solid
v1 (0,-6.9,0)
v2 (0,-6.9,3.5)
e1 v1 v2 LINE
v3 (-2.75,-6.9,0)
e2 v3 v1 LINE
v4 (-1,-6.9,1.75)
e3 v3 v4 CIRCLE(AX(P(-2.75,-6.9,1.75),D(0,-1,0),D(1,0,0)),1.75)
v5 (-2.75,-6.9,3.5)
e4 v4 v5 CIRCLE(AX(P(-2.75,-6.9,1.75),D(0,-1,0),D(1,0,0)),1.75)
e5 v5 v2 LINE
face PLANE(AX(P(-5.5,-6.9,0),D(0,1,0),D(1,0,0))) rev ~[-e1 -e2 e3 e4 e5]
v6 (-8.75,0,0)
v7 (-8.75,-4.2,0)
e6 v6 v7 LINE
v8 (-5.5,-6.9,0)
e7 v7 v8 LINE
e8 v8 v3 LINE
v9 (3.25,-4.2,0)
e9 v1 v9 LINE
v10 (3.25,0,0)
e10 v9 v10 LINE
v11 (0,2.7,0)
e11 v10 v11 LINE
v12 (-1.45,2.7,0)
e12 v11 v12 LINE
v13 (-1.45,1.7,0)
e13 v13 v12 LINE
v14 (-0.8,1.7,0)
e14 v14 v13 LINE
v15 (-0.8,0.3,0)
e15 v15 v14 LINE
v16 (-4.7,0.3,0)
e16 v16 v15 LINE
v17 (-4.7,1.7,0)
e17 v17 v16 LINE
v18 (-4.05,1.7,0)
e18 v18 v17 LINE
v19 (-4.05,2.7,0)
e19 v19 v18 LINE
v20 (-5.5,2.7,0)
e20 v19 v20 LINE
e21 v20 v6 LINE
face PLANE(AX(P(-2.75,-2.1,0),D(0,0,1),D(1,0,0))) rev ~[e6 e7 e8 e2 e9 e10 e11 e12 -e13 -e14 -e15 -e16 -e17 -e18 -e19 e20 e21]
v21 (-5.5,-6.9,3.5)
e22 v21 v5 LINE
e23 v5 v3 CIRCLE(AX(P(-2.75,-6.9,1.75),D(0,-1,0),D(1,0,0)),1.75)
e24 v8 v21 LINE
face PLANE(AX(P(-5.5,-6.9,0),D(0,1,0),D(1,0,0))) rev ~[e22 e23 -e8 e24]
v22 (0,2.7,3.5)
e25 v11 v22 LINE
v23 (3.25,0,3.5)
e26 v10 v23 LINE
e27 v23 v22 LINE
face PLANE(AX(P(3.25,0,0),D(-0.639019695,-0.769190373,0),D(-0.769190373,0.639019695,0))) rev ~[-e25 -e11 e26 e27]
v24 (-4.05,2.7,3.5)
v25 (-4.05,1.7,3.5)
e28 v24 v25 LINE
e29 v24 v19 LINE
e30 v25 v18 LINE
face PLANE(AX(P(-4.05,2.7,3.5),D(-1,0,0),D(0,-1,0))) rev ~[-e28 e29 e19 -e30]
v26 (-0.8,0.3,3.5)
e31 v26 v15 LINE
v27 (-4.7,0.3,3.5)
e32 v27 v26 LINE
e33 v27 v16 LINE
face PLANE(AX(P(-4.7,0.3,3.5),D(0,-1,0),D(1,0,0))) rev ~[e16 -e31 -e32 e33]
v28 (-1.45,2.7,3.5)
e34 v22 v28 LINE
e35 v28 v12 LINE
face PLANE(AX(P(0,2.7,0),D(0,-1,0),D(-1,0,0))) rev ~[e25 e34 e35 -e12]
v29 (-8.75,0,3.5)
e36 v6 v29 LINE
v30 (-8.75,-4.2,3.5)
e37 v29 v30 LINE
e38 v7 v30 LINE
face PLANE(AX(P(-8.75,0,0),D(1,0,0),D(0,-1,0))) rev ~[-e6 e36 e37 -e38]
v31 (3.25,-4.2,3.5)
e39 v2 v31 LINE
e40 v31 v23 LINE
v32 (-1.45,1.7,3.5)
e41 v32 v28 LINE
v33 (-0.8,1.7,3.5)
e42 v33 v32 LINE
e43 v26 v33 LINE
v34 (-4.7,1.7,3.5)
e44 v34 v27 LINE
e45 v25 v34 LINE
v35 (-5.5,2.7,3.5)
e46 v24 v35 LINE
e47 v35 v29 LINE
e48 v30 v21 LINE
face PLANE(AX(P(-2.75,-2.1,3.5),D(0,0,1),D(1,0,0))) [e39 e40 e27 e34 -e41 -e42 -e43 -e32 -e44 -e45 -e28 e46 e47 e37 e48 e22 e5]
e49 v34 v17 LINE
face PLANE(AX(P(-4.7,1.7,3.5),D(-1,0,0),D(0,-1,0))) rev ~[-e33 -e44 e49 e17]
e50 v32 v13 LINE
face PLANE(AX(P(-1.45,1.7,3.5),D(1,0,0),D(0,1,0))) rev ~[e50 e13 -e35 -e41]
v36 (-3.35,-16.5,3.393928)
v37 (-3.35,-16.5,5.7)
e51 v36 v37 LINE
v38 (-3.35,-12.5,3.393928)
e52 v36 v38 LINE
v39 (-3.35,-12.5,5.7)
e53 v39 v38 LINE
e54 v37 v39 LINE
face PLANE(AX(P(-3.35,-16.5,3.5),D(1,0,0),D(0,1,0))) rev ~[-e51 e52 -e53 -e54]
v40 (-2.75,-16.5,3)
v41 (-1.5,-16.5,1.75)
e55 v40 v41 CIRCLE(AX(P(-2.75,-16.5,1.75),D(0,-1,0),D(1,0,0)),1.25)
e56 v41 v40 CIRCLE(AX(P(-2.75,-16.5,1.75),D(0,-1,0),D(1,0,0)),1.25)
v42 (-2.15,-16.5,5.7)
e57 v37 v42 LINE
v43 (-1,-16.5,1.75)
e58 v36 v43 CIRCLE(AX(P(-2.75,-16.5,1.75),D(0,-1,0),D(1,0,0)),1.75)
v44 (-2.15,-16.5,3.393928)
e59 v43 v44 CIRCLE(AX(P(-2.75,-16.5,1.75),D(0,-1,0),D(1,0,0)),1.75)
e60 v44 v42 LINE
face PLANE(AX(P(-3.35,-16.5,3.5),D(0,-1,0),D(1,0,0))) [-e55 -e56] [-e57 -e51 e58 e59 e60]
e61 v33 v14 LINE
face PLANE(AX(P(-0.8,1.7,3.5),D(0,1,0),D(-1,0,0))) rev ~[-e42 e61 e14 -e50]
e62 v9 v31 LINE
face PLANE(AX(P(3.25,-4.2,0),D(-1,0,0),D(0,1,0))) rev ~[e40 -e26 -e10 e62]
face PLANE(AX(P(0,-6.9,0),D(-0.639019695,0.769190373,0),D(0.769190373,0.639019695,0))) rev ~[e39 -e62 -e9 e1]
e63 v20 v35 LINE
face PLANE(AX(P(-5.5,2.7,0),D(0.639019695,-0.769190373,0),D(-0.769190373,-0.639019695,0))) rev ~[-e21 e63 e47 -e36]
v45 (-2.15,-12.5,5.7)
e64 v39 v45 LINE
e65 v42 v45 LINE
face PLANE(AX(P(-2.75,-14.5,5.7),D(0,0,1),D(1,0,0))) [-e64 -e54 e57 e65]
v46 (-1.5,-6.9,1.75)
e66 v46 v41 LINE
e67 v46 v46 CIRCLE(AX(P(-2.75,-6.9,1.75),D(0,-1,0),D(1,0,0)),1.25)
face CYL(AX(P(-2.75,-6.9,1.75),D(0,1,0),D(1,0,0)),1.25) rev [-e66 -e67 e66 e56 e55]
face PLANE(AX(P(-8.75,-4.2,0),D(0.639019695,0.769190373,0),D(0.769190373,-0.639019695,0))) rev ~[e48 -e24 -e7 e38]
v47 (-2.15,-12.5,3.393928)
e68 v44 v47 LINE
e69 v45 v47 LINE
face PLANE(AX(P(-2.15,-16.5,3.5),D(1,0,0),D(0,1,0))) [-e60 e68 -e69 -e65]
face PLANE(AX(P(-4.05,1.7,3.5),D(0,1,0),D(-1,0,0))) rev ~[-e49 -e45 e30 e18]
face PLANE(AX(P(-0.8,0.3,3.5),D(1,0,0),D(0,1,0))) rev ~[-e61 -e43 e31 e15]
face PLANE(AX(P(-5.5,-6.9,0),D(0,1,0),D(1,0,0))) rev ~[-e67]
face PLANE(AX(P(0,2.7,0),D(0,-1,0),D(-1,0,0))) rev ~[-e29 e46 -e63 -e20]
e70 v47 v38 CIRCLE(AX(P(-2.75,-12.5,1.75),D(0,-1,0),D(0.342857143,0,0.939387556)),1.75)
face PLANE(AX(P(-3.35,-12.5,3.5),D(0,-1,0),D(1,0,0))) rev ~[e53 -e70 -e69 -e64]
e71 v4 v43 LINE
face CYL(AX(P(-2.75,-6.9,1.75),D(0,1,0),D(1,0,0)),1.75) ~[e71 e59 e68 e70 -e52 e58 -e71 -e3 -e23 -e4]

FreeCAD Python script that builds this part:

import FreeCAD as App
import Part
import Sketcher

V = App.Vector
Q = App.Units.Quantity

doc = App.newDocument("Part")
body = doc.addObject("PartDesign::Body", "Body")

# Sketch on XY plane
sketch1 = body.newObject("Sketcher::SketchObject", "Sketch")
sketch1.AttachmentSupport = (doc.getObject("XY_Plane"), [""])
sketch1.MapMode = "FlatFace"
sketch1.addGeometry([
    Part.LineSegment(V(0, 2.7, 0), V(-5.5, 2.7, 0)),  # 0
    Part.LineSegment(V(-5.5, 2.7, 0), V(-8.8, 0, 0)),  # 1
    Part.LineSegment(V(-8.8, 0, 0), V(-8.8, -4.2, 0)),  # 2
    Part.LineSegment(V(-8.8, -4.2, 0), V(-5.5, -6.9, 0)),  # 3
    Part.LineSegment(V(-5.5, -6.9, 0), V(0, -6.9, 0)),  # 4
    Part.LineSegment(V(0, -6.9, 0), V(3.2, -4.2, 0)),  # 5
    Part.LineSegment(V(3.2, -4.2, 0), V(3.2, 0, 0)),  # 6
    Part.LineSegment(V(3.2, 0, 0), V(0, 2.7, 0)),  # 7
], False)
sketch1.addConstraint([
    Sketcher.Constraint("Coincident", 0, 2, 1, 1),
    Sketcher.Constraint("Coincident", 1, 2, 2, 1),
    Sketcher.Constraint("Coincident", 2, 2, 3, 1),
    Sketcher.Constraint("Coincident", 3, 2, 4, 1),
    Sketcher.Constraint("Coincident", 4, 2, 5, 1),
    Sketcher.Constraint("Coincident", 5, 2, 6, 1),
    Sketcher.Constraint("Coincident", 6, 2, 7, 1),
    Sketcher.Constraint("Coincident", 7, 2, 0, 1),
    Sketcher.Constraint("Horizontal", 0),
    Sketcher.Constraint("Vertical", 2),
    Sketcher.Constraint("Horizontal", 4),
    Sketcher.Constraint("Vertical", 6),
    Sketcher.Constraint("PointOnObject", 1, 2, -1),
    Sketcher.Constraint("PointOnObject", 4, 2, -2),
    Sketcher.Constraint("PointOnObject", 6, 2, -1),
    Sketcher.Constraint("PointOnObject", 7, 2, -2),
    Sketcher.Constraint("Parallel", 1, 5),
    Sketcher.Constraint("Parallel", 3, 7),
    Sketcher.Constraint("Horizontal", 2, 2, 5, 2),
    Sketcher.Constraint("Vertical", 0, 2, 3, 2),
    Sketcher.Constraint("DistanceX", 0, 2, 0, 1, Q("5.5 mm")),
    Sketcher.Constraint("DistanceY", 2, 2, 2, 1, Q("4.2 mm")),
    Sketcher.Constraint("DistanceX", 2, 2, 5, 2, Q("12 mm")),
    Sketcher.Constraint("DistanceY", -1, 1, 0, 2, Q("2.7 mm")),
])
pad1 = body.newObject("PartDesign::Pad", "Pad")
pad1.Profile = sketch1
pad1.Length = 3.5

# Sketch on XZ plane
sketch2 = body.newObject("Sketcher::SketchObject", "Sketch001")
sketch2.AttachmentSupport = (doc.getObject("XZ_Plane"), [""])
sketch2.MapMode = "FlatFace"
sketch2.AttachmentOffset = App.Placement(V(0, 0, 6.9), App.Rotation())
sketch2.addGeometry([
    Part.Circle(V(-2.8, 1.8, 0), V(0, 0, 1), 1.8),
    Part.Circle(V(-2.8, 1.8, 0), V(0, 0, 1), 1.2),
], False)
sketch2.addConstraint([
    Sketcher.Constraint("Coincident", 1, 3, 0, 3),
    Sketcher.Constraint("Diameter", 0, Q("3.5 mm")),
    Sketcher.Constraint("Diameter", 1, Q("2.5 mm")),
    Sketcher.Constraint("DistanceX", 0, 3, -1, 1, Q("2.75 mm")),
    Sketcher.Constraint("DistanceY", -1, 1, 0, 3, Q("1.75 mm")),
])
pad2 = body.newObject("PartDesign::Pad", "Pad001")
pad2.Profile = sketch2
pad2.Length = 9.6

# Sketch on XY plane
sketch3 = body.newObject("Sketcher::SketchObject", "Sketch002")
sketch3.AttachmentSupport = (doc.getObject("XY_Plane"), [""])
sketch3.MapMode = "FlatFace"
sketch3.AttachmentOffset = App.Placement(V(0, 0, 3.5), App.Rotation())
sketch3.addGeometry([
    Part.LineSegment(V(-1.4, 2.7, 0), V(-4, 2.7, 0)),  # 0
    Part.LineSegment(V(-4, 2.7, 0), V(-4, 1.7, 0)),  # 1
    Part.LineSegment(V(-4, 1.7, 0), V(-4.7, 1.7, 0)),  # 2
    Part.LineSegment(V(-4.7, 1.7, 0), V(-4.7, 0.3, 0)),  # 3
    Part.LineSegment(V(-4.7, 0.3, 0), V(-0.8, 0.3, 0)),  # 4
    Part.LineSegment(V(-0.8, 0.3, 0), V(-0.8, 1.7, 0)),  # 5
    Part.LineSegment(V(-0.8, 1.7, 0), V(-1.4, 1.7, 0)),  # 6
    Part.LineSegment(V(-1.4, 1.7, 0), V(-1.4, 2.7, 0)),  # 7
], False)
sketch3.addConstraint([
    Sketcher.Constraint("Coincident", 0, 2, 1, 1),
    Sketcher.Constraint("Coincident", 1, 2, 2, 1),
    Sketcher.Constraint("Coincident", 2, 2, 3, 1),
    Sketcher.Constraint("Coincident", 3, 2, 4, 1),
    Sketcher.Constraint("Coincident", 4, 2, 5, 1),
    Sketcher.Constraint("Coincident", 5, 2, 6, 1),
    Sketcher.Constraint("Coincident", 6, 2, 7, 1),
    Sketcher.Constraint("Coincident", 7, 2, 0, 1),
    Sketcher.Constraint("Horizontal", 0),
    Sketcher.Constraint("Vertical", 1),
    Sketcher.Constraint("Horizontal", 2),
    Sketcher.Constraint("Vertical", 3),
    Sketcher.Constraint("Horizontal", 4),
    Sketcher.Constraint("Vertical", 5),
    Sketcher.Constraint("Horizontal", 6),
    Sketcher.Constraint("Vertical", 7),
    Sketcher.Constraint("Horizontal", 2, 2, 5, 2),
    Sketcher.Constraint("Equal", 2, 6),
    Sketcher.Constraint("DistanceY", 1, 2, 1, 1, Q("1 mm")),
    Sketcher.Constraint("DistanceX", 0, 2, 0, 1, Q("2.6 mm")),
    Sketcher.Constraint("DistanceX", 4, 1, 4, 2, Q("3.9 mm")),
    Sketcher.Constraint("DistanceY", 3, 2, 3, 1, Q("1.4 mm")),
    Sketcher.Constraint("DistanceY", -1, 1, 0, 2, Q("2.7 mm")),
    Sketcher.Constraint("DistanceX", 2, 2, -1, 1, Q("4.7 mm")),
])
pocket1 = body.newObject("PartDesign::Pocket", "Pocket")
pocket1.Profile = sketch3
pocket1.Type = "ThroughAll"

# Sketch on XY plane
sketch4 = body.newObject("Sketcher::SketchObject", "Sketch003")
sketch4.AttachmentSupport = (doc.getObject("XY_Plane"), [""])
sketch4.MapMode = "FlatFace"
sketch4.AttachmentOffset = App.Placement(V(0, 0, 3.5), App.Rotation())
sketch4.addGeometry([
    Part.LineSegment(V(-3.4, -12.5, 0), V(-3.4, -16.5, 0)),
    Part.LineSegment(V(-3.4, -16.5, 0), V(-2.1, -16.5, 0)),
    Part.LineSegment(V(-2.1, -16.5, 0), V(-2.1, -12.5, 0)),
    Part.LineSegment(V(-2.1, -12.5, 0), V(-3.4, -12.5, 0)),
], False)
sketch4.addConstraint([
    Sketcher.Constraint("Coincident", 0, 2, 1, 1),
    Sketcher.Constraint("Coincident", 1, 2, 2, 1),
    Sketcher.Constraint("Coincident", 2, 2, 3, 1),
    Sketcher.Constraint("Coincident", 3, 2, 0, 1),
    Sketcher.Constraint("Vertical", 0),
    Sketcher.Constraint("Horizontal", 1),
    Sketcher.Constraint("Vertical", 2),
    Sketcher.Constraint("Horizontal", 3),
    Sketcher.Constraint("DistanceY", 0, 2, 0, 1, Q("4 mm")),
    Sketcher.Constraint("DistanceX", 1, 1, 1, 2, Q("1.2 mm")),
    Sketcher.Constraint("DistanceY", 0, 2, -1, 1, Q("16.5 mm")),
    Sketcher.Constraint("DistanceX", 0, 2, -1, 1, Q("3.35 mm")),
])
pad3 = body.newObject("PartDesign::Pad", "Pad002")
pad3.Profile = sketch4
pad3.Type = "TwoLengths"
pad3.Length = 2.2
pad3.Length2 = 0.5

doc.recompute()
